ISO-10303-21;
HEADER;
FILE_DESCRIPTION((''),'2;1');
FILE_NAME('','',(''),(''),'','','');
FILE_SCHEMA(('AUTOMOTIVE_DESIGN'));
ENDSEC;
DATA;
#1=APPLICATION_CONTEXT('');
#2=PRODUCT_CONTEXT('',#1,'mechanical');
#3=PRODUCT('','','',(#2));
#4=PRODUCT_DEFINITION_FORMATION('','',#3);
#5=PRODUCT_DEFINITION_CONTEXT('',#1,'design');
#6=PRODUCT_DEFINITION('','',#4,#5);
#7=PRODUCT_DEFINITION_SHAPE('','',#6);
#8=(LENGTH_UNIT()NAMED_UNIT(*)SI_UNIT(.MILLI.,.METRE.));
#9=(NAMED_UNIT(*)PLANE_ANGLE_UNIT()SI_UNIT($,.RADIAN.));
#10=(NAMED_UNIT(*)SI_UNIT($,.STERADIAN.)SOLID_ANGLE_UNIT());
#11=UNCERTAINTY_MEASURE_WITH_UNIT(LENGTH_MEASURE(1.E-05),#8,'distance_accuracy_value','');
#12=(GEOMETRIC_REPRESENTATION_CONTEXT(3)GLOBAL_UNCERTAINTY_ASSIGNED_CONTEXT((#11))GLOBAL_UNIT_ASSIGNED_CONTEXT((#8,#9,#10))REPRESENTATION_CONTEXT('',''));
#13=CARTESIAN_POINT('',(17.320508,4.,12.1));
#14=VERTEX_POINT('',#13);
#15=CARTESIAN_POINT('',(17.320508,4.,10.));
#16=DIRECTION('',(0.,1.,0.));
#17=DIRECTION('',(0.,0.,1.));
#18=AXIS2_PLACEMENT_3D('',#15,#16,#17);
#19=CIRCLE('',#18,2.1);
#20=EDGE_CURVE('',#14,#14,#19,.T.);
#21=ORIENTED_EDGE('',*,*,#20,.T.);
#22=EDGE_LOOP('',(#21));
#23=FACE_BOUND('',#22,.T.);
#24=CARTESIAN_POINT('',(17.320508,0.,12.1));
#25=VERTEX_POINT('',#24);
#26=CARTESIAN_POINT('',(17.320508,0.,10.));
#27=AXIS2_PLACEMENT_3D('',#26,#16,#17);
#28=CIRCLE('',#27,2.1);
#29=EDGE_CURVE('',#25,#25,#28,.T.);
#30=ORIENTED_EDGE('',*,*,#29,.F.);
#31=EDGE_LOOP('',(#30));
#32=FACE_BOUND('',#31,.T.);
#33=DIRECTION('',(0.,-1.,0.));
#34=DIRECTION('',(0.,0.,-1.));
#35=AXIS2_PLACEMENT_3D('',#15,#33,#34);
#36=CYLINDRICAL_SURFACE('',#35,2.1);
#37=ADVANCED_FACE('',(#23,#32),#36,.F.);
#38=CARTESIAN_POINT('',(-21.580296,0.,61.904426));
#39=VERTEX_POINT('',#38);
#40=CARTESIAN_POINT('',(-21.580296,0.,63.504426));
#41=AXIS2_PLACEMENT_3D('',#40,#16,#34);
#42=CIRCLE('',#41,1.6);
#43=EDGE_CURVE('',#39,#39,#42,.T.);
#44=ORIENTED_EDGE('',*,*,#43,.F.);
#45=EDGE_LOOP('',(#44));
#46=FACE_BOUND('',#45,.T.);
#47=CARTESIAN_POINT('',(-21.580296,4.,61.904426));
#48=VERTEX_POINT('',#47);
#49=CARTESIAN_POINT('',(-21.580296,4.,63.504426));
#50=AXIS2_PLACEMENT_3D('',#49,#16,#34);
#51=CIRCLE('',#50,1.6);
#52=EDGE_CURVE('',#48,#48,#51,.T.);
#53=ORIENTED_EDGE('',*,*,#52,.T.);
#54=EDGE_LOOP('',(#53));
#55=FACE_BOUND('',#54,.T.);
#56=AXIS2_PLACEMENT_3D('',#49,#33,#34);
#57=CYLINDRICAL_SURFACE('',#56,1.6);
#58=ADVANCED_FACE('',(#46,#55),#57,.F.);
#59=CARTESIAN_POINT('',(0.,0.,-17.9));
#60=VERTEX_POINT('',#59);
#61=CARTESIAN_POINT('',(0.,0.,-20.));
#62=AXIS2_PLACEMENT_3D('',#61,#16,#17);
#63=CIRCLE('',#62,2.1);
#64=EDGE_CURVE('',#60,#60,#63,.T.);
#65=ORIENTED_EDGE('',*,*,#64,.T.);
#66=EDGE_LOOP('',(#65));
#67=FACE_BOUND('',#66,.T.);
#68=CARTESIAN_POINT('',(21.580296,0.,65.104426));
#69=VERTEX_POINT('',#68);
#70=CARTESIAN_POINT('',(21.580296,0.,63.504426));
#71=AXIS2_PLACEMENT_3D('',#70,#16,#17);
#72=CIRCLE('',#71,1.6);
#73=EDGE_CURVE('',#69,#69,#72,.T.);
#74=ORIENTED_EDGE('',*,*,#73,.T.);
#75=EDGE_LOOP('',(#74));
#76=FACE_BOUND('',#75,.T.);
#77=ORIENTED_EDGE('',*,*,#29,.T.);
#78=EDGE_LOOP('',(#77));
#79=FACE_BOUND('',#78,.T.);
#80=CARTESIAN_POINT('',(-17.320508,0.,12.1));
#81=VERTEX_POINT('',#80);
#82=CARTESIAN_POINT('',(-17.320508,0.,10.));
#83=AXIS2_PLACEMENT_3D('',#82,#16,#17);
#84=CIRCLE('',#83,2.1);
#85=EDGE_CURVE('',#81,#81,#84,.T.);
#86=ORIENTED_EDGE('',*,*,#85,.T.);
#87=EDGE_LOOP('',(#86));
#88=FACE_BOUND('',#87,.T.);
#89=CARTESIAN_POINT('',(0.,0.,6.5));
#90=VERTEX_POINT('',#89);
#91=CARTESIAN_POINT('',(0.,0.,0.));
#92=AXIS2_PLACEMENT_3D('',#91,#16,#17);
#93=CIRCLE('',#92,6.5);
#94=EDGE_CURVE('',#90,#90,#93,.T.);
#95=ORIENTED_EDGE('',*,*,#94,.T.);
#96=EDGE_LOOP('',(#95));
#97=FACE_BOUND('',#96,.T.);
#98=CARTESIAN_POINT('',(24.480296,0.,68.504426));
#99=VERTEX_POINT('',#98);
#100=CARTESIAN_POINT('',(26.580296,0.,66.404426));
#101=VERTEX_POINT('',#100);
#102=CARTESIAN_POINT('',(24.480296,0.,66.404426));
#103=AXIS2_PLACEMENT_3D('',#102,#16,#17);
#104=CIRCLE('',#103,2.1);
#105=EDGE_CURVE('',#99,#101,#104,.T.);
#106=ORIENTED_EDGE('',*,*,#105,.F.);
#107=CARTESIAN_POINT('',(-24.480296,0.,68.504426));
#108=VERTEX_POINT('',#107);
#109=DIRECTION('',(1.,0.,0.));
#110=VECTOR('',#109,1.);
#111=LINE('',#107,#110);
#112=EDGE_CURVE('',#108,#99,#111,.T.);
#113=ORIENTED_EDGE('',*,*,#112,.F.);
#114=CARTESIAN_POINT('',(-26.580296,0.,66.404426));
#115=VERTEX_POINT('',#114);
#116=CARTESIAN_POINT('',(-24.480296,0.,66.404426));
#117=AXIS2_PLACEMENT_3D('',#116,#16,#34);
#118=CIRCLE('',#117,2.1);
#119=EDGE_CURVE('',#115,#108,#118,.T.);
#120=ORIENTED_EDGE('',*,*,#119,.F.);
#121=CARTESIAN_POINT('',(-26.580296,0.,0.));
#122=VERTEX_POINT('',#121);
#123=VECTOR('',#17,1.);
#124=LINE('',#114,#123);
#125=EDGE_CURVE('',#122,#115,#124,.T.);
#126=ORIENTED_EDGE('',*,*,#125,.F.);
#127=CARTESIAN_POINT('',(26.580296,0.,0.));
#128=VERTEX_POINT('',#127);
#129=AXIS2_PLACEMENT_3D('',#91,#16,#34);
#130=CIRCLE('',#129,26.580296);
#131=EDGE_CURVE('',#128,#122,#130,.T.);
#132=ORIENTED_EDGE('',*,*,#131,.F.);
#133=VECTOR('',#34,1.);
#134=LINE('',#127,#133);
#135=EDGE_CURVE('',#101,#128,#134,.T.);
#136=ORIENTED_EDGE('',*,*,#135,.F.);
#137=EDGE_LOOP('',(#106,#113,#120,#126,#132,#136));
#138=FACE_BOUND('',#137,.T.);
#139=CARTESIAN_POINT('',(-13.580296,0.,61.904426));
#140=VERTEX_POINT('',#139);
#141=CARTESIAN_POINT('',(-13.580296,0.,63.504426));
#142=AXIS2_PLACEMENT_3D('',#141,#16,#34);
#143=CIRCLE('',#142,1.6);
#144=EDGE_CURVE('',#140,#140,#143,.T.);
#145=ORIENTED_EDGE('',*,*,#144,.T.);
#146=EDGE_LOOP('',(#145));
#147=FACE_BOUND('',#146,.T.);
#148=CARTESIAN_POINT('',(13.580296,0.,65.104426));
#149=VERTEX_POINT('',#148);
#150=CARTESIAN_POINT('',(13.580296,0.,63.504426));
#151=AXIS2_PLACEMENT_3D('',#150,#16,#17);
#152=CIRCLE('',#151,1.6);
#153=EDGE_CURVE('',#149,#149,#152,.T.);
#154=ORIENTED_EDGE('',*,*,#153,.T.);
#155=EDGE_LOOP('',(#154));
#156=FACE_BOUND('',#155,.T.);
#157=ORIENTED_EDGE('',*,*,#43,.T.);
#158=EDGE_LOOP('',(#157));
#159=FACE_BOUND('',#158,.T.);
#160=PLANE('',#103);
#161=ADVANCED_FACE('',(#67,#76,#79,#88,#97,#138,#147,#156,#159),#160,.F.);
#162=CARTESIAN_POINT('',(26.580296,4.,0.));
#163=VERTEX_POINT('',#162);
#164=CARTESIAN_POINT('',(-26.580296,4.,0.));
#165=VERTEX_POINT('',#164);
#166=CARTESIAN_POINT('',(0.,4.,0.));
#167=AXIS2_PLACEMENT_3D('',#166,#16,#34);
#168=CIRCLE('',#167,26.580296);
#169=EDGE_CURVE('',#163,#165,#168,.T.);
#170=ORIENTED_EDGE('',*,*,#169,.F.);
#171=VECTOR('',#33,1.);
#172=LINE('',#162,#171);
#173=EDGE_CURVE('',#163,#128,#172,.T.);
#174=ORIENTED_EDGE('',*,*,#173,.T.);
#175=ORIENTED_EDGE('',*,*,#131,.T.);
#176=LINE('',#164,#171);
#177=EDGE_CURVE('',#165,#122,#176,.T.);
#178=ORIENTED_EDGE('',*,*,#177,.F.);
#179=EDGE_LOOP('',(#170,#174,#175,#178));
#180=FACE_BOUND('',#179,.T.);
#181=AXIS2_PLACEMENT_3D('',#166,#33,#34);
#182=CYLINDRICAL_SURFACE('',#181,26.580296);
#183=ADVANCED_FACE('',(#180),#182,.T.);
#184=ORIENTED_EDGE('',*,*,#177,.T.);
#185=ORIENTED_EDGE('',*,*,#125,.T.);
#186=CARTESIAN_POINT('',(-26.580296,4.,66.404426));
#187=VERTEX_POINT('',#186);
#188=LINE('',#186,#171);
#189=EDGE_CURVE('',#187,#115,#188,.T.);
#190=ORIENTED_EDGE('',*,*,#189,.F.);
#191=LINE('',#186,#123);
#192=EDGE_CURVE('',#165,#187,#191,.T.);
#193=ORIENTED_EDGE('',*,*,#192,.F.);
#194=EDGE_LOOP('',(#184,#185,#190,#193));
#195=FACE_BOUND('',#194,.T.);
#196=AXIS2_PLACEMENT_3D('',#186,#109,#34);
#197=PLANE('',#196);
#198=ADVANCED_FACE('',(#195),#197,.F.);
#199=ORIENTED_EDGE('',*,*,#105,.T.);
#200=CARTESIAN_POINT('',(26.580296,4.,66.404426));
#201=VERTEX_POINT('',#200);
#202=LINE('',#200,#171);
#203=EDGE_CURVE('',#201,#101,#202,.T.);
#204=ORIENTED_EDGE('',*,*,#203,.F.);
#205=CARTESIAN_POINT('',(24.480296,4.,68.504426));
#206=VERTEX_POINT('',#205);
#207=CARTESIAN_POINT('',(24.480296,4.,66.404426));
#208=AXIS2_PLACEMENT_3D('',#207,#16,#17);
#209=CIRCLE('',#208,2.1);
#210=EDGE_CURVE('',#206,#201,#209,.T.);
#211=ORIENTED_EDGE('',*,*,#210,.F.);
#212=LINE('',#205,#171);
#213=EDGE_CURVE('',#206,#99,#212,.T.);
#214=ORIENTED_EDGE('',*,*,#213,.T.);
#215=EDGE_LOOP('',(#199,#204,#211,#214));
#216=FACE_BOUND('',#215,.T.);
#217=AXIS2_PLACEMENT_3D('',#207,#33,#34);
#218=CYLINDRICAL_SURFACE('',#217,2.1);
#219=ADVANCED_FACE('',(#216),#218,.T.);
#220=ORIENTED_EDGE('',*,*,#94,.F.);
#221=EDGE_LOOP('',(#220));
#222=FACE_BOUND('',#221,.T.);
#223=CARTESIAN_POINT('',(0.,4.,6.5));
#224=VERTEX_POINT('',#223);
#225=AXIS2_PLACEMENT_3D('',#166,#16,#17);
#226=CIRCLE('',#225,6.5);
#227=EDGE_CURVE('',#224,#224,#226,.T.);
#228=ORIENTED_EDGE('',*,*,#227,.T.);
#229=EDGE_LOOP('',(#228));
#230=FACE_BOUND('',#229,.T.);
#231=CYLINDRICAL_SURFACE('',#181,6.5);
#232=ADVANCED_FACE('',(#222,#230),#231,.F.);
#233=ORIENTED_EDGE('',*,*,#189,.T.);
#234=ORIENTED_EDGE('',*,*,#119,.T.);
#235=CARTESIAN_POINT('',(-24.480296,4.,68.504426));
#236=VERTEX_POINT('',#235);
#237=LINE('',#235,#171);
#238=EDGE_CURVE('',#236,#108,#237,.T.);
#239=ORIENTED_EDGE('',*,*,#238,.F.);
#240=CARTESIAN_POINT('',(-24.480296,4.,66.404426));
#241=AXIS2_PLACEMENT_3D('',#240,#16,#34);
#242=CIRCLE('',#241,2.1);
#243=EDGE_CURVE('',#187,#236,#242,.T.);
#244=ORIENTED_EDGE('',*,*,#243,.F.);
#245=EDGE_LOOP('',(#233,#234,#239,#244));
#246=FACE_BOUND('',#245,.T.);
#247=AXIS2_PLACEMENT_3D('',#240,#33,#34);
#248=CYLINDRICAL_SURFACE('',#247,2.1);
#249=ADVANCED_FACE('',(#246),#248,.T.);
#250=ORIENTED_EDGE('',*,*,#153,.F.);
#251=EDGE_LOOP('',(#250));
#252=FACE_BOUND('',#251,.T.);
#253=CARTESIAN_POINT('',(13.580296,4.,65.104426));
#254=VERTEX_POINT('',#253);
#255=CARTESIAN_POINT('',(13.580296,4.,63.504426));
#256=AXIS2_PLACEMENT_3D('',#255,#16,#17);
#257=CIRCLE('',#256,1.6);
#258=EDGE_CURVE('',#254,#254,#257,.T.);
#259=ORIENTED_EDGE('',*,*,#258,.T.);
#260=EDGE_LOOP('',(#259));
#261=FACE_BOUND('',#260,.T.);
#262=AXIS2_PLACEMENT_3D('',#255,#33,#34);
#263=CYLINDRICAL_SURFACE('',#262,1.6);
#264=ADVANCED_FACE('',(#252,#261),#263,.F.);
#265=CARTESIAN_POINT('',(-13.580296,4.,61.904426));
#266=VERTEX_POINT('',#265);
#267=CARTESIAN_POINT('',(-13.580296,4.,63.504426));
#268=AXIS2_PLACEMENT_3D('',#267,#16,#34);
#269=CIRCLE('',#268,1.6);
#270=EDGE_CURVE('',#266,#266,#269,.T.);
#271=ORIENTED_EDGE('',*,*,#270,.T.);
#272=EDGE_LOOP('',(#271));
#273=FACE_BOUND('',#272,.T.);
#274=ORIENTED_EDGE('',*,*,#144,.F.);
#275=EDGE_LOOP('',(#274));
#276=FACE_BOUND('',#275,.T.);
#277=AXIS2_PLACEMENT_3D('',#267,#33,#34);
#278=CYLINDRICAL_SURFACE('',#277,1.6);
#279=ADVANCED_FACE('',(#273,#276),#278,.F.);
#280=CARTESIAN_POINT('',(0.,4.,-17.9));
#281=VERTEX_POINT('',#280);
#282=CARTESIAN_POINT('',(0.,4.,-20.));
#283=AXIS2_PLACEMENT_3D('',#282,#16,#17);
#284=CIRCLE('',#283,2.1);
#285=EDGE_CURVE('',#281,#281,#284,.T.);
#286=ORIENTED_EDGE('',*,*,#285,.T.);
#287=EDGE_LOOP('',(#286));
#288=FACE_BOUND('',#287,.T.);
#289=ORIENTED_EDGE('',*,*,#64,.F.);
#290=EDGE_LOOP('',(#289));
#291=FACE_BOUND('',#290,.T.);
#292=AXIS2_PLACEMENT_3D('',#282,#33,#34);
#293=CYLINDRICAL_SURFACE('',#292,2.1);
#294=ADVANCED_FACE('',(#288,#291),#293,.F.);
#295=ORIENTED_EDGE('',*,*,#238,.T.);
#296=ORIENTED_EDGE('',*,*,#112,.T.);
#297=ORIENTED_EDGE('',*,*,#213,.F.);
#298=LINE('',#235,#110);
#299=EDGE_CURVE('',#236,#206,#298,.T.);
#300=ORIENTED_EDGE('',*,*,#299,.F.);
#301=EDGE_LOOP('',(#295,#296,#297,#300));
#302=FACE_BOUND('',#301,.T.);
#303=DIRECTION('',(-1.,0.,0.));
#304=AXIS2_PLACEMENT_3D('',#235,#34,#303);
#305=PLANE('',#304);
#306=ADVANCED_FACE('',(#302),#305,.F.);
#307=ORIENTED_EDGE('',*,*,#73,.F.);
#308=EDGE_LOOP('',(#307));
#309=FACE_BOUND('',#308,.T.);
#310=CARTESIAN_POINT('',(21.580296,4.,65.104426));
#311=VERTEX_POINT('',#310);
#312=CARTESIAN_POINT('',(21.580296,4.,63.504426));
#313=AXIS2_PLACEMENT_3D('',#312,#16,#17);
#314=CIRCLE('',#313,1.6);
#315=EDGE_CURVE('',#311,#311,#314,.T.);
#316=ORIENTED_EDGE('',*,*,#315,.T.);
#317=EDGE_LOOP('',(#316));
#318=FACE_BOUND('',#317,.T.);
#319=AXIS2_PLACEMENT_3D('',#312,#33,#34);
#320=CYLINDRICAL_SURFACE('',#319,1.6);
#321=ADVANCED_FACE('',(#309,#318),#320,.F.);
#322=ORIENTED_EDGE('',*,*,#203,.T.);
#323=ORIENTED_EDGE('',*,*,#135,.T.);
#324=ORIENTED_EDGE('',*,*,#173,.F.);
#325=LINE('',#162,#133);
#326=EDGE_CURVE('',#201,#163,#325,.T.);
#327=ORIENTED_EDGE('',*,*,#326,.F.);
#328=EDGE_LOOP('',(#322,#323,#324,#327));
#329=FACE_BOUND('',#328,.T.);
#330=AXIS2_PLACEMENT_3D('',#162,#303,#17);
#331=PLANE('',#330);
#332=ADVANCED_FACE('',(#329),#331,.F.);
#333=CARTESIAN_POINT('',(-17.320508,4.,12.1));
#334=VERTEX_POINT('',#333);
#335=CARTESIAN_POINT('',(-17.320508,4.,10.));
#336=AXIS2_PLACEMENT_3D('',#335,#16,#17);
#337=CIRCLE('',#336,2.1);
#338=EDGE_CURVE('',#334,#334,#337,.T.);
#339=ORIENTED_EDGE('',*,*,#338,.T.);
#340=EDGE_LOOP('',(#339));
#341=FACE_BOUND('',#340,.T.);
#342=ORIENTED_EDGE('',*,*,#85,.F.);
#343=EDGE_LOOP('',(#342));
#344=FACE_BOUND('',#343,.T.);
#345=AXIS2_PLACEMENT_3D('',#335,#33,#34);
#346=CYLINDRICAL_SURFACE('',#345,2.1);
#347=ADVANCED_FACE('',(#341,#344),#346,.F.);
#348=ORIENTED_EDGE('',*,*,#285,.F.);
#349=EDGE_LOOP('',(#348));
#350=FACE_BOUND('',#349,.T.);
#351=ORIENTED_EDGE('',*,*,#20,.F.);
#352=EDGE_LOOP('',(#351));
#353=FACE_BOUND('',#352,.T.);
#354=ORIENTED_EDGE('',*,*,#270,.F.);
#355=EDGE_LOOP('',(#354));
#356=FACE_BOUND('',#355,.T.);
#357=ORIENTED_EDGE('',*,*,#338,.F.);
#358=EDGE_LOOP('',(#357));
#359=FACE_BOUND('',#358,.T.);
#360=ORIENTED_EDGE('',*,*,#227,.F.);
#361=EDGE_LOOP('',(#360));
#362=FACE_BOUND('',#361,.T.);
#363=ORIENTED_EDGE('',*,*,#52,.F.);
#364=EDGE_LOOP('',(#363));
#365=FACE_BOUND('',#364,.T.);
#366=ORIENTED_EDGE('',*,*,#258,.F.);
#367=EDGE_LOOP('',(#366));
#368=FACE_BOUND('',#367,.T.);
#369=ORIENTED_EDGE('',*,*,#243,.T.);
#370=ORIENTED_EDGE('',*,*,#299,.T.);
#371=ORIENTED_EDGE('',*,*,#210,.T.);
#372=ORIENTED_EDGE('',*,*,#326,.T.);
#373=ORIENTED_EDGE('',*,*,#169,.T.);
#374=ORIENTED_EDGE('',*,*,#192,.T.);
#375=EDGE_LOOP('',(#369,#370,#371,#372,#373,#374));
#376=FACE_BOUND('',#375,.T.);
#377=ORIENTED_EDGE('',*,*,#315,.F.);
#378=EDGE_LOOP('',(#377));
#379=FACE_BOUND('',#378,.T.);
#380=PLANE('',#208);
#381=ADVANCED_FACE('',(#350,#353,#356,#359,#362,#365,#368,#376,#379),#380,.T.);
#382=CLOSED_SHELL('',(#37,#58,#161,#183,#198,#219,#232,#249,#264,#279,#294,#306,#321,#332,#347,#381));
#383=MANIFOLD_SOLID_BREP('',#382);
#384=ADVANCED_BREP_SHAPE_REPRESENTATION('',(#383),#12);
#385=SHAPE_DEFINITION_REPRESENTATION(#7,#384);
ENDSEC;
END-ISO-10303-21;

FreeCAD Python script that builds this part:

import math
import FreeCAD as App
import Part
import Sketcher

doc = App.newDocument("Part")
body = doc.addObject("PartDesign::Body", "Body")

# Sketch on XZ plane
sketch1 = doc.addObject("Sketcher::SketchObject", "Sketch")
body.addObject(sketch1)
sketch1.AttachmentSupport = (doc.XZ_Plane, [""])
sketch1.MapMode = "FlatFace"
sketch1.addGeometry([
    Part.LineSegment(App.Vector(-26.6, 0, 0), App.Vector(-26.6, 66.4, 0)),  # 0
    Part.ArcOfCircle(Part.Circle(App.Vector(-24.5, 66.4, 0), App.Vector(0, 0, 1), 2.1), math.radians(90), math.radians(180)),  # 1
    Part.LineSegment(App.Vector(-24.5, 68.5, 0), App.Vector(24.5, 68.5, 0)),  # 2
    Part.ArcOfCircle(Part.Circle(App.Vector(24.5, 66.4, 0), App.Vector(0, 0, 1), 2.1), math.radians(0), math.radians(90)),  # 3
    Part.LineSegment(App.Vector(26.6, 66.4, 0), App.Vector(26.6, 0, 0)),  # 4
    Part.ArcOfCircle(Part.Circle(App.Vector(0, 0, 0), App.Vector(0, 0, 1), 26.6), math.radians(180), math.radians(360)),  # 5
    Part.Circle(App.Vector(21.6, 63.5, 0), App.Vector(0, 0, 1), 1.6),  # 6
    Part.Circle(App.Vector(13.6, 63.5, 0), App.Vector(0, 0, 1), 1.6),  # 7
    Part.Circle(App.Vector(-13.6, 63.5, 0), App.Vector(0, 0, 1), 1.6),  # 8
    Part.Circle(App.Vector(-21.6, 63.5, 0), App.Vector(0, 0, 1), 1.6),  # 9
    Part.Circle(App.Vector(17.3, 10, 0), App.Vector(0, 0, 1), 2.1),  # 10
    Part.Circle(App.Vector(0, 0, 0), App.Vector(0, 0, 1), 6.5),  # 11
    Part.Circle(App.Vector(0, -20, 0), App.Vector(0, 0, 1), 2.1),  # 12
    Part.Circle(App.Vector(-17.3, 10, 0), App.Vector(0, 0, 1), 2.1),  # 13
], False)
sketch1.addConstraint([
    Sketcher.Constraint("Tangent", 0, 2, 1, 2),
    Sketcher.Constraint("Tangent", 1, 1, 2, 1),
    Sketcher.Constraint("Tangent", 2, 2, 3, 2),
    Sketcher.Constraint("Tangent", 3, 1, 4, 1),
    Sketcher.Constraint("Tangent", 4, 2, 5, 2),
    Sketcher.Constraint("Tangent", 5, 1, 0, 1),
    Sketcher.Constraint("Vertical", 0),
    Sketcher.Constraint("Horizontal", 2),
    Sketcher.Constraint("Vertical", 4),
    Sketcher.Constraint("Coincident", 5, 3, -1, 1),
    Sketcher.Constraint("Coincident", 11, 3, -1, 1),
    Sketcher.Constraint("Equal", 1, 3),
    Sketcher.Constraint("Equal", 6, 7),
    Sketcher.Constraint("Equal", 7, 8),
    Sketcher.Constraint("Equal", 8, 9),
    Sketcher.Constraint("Equal", 3, 10),
    Sketcher.Constraint("Equal", 10, 12),
    Sketcher.Constraint("Equal", 12, 13),
    Sketcher.Constraint("Symmetric", 7, 3, 8, 3, -2),
    Sketcher.Constraint("Symmetric", 6, 3, 9, 3, -2),
    Sketcher.Constraint("Symmetric", 10, 3, 13, 3, -2),
    Sketcher.Constraint("PointOnObject", 12, 3, -2),
    Sketcher.Constraint("Horizontal", 6, 3, 7, 3),
    Sketcher.Constraint("Diameter", 11, 13.0),
    Sketcher.Constraint("Diameter", 6, 3.2),
    Sketcher.Constraint("Diameter", 10, 4.2),
    Sketcher.Constraint("DistanceY", -1, 1, 10, 3, 10.0),
    Sketcher.Constraint("DistanceY", 12, 3, -1, 1, 20.0),
    Sketcher.Constraint("DistanceX", 7, 3, 6, 3, 8.0),
    Sketcher.Constraint("DistanceX", 0, 2, 9, 3, 5.0),
    Sketcher.Constraint("DistanceY", 9, 3, 1, 1, 5.0),
    Sketcher.Constraint("Radius", 5, 26.580296),
    Sketcher.Constraint("DistanceY", 0, 1, 0, 2, 66.404426),
    Sketcher.Constraint("DistanceX", -1, 1, 10, 3, 17.320508),
])
pad1 = doc.addObject("PartDesign::Pad", "Pad")
body.addObject(pad1)
pad1.Profile = sketch1
pad1.Length = 4
pad1.Reversed = True

doc.recompute()
